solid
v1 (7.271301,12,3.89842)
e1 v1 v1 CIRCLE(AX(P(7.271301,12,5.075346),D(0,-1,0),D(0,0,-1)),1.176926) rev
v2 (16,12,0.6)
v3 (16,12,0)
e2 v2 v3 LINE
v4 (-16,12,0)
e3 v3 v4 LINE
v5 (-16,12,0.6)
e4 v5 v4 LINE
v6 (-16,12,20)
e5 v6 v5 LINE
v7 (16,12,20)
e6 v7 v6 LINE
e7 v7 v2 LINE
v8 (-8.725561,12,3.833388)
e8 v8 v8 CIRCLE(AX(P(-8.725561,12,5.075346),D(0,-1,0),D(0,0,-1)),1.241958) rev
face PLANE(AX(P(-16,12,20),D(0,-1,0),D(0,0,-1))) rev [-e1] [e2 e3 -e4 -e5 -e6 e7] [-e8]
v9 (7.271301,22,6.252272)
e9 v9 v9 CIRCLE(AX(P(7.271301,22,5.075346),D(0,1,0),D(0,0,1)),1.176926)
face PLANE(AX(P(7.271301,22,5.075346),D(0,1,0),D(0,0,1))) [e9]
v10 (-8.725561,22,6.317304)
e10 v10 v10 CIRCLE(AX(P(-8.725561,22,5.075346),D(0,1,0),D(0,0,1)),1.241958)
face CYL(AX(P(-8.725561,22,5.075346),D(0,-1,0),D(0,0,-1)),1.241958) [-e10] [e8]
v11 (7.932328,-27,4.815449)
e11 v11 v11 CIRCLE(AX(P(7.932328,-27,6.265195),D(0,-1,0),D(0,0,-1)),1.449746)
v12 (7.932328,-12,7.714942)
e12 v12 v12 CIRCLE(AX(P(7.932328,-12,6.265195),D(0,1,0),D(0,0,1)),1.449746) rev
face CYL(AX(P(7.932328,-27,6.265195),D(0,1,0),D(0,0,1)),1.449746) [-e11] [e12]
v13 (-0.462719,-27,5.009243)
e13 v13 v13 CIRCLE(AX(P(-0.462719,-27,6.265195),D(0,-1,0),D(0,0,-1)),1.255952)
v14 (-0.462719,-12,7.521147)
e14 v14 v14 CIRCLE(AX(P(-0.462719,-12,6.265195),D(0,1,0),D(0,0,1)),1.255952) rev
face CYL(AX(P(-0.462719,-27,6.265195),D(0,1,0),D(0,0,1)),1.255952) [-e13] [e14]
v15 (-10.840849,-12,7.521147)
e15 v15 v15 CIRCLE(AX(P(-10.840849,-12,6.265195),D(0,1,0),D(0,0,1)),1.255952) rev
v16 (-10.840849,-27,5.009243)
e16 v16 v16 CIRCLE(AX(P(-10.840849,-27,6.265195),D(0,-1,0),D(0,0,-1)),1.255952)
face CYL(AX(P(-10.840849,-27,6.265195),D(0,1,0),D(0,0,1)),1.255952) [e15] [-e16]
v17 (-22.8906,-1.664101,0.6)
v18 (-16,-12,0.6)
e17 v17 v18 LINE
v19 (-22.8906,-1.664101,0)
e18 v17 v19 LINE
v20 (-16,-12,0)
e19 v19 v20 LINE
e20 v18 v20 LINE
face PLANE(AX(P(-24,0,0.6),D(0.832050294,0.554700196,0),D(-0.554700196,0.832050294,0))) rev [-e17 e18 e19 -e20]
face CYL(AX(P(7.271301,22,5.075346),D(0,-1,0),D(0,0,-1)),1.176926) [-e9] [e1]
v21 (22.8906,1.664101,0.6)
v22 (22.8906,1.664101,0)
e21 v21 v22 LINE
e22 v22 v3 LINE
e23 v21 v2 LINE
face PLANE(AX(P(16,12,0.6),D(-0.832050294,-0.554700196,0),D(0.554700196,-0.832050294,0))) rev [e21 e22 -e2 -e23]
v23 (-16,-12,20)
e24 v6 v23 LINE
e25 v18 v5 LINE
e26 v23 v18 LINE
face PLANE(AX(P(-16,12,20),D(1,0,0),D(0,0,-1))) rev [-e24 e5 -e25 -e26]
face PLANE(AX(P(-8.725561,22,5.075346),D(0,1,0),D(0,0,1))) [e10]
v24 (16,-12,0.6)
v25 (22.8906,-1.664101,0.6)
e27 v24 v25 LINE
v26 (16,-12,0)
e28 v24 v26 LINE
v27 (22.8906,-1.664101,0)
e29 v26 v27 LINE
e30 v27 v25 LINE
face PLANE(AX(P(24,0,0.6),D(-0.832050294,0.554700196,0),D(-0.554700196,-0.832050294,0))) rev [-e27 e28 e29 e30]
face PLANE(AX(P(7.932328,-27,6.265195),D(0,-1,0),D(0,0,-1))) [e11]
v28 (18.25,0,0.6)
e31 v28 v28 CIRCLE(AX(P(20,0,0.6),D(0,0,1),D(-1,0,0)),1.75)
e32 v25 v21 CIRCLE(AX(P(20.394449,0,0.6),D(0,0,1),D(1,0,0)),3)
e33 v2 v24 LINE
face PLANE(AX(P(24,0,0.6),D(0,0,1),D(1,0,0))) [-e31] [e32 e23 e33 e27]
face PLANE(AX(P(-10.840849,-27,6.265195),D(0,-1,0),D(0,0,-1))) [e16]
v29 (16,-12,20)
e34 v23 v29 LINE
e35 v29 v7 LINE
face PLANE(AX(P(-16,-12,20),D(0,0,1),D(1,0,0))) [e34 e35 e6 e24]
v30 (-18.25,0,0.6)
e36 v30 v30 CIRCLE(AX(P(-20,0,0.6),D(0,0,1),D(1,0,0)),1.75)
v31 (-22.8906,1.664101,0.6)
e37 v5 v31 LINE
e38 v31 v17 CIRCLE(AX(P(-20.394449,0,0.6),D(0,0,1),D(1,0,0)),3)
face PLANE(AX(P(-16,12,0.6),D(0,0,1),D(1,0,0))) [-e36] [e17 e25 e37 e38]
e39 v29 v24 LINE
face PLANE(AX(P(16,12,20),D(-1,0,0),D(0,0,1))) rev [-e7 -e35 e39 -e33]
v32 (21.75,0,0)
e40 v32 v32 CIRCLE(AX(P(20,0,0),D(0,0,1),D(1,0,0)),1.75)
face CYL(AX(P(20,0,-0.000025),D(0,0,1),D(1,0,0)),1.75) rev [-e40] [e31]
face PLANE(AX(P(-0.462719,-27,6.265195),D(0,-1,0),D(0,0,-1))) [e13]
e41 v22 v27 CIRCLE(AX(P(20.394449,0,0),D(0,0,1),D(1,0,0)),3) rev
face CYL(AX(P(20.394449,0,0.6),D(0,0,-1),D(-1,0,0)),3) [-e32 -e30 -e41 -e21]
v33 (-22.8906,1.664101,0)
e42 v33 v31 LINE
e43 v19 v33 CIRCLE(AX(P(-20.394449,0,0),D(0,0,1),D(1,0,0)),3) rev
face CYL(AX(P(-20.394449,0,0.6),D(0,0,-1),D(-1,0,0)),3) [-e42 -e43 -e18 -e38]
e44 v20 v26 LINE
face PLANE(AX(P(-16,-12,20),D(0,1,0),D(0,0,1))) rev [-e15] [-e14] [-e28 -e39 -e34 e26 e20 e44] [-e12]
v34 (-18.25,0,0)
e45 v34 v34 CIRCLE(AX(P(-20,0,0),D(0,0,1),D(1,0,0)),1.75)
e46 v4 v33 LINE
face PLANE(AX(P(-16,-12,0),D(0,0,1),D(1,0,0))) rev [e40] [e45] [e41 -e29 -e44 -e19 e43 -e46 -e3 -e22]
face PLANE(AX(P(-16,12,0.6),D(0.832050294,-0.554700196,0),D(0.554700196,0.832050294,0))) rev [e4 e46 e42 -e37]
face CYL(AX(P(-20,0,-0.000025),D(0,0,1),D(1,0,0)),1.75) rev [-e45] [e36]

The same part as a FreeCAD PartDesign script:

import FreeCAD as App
import Part
import Sketcher
Q = App.Units.Quantity


def edges_at(feature, points):
    """Names of the edges that pass closest to the given points."""
    edges = feature.Shape.Edges
    near = lambda p: min(range(len(edges)), key=lambda i: edges[i].distToShape(Part.Vertex(*p))[0])
    return sorted({f"Edge{near(p) + 1}" for p in points})

doc = App.newDocument("Part")
body = doc.addObject("PartDesign::Body", "Body")

sketch1 = doc.addObject("Sketcher::SketchObject", "Sketch")
body.addObject(sketch1)
sketch1.AttachmentSupport = (doc.XY_Plane, [""])
sketch1.MapMode = "FlatFace"
sketch1.addGeometry(Part.LineSegment(App.Vector(-16, 12, 0), App.Vector(-16, -12, 0)), False)
sketch1.addGeometry(Part.LineSegment(App.Vector(-16, -12, 0), App.Vector(16, -12, 0)), False)
sketch1.addGeometry(Part.LineSegment(App.Vector(16, -12, 0), App.Vector(16, 12, 0)), False)
sketch1.addGeometry(Part.LineSegment(App.Vector(16, 12, 0), App.Vector(-16, 12, 0)), False)
sketch1.addConstraint(Sketcher.Constraint("Coincident", 0, 2, 1, 1))
sketch1.addConstraint(Sketcher.Constraint("Coincident", 1, 2, 2, 1))
sketch1.addConstraint(Sketcher.Constraint("Coincident", 2, 2, 3, 1))
sketch1.addConstraint(Sketcher.Constraint("Coincident", 3, 2, 0, 1))
sketch1.addConstraint(Sketcher.Constraint("Vertical", 0))
sketch1.addConstraint(Sketcher.Constraint("Horizontal", 1))
sketch1.addConstraint(Sketcher.Constraint("Vertical", 2))
sketch1.addConstraint(Sketcher.Constraint("Horizontal", 3))
sketch1.addConstraint(Sketcher.Constraint("Symmetric", 0, 2, 2, 2, -1, 1))
sketch1.addConstraint(Sketcher.Constraint("DistanceX", 1, 1, 1, 2, Q("32 mm")))
sketch1.addConstraint(Sketcher.Constraint("DistanceY", 0, 2, 0, 1, Q("24 mm")))
pad1 = doc.addObject("PartDesign::Pad", "Pad")
body.addObject(pad1)
pad1.Profile = sketch1
pad1.Length = 20

sketch2 = doc.addObject("Sketcher::SketchObject", "Sketch001")
body.addObject(sketch2)
sketch2.AttachmentSupport = (doc.XY_Plane, [""])
sketch2.MapMode = "FlatFace"
sketch2.addGeometry(Part.LineSegment(App.Vector(-16, 12, 0), App.Vector(-24, 0, 0)), False)
sketch2.addGeometry(Part.LineSegment(App.Vector(-24, 0, 0), App.Vector(-16, -12, 0)), False)
sketch2.addGeometry(Part.LineSegment(App.Vector(-16, -12, 0), App.Vector(-16, 12, 0)), False)
sketch2.addGeometry(Part.LineSegment(App.Vector(16, 12, 0), App.Vector(16, -12, 0)), False)
sketch2.addGeometry(Part.LineSegment(App.Vector(16, -12, 0), App.Vector(24, 0, 0)), False)
sketch2.addGeometry(Part.LineSegment(App.Vector(24, 0, 0), App.Vector(16, 12, 0)), False)
sketch2.addConstraint(Sketcher.Constraint("Coincident", 0, 2, 1, 1))
sketch2.addConstraint(Sketcher.Constraint("Coincident", 1, 2, 2, 1))
sketch2.addConstraint(Sketcher.Constraint("Coincident", 2, 2, 0, 1))
sketch2.addConstraint(Sketcher.Constraint("Coincident", 3, 2, 4, 1))
sketch2.addConstraint(Sketcher.Constraint("Coincident", 4, 2, 5, 1))
sketch2.addConstraint(Sketcher.Constraint("Coincident", 5, 2, 3, 1))
sketch2.addConstraint(Sketcher.Constraint("Vertical", 2))
sketch2.addConstraint(Sketcher.Constraint("Vertical", 3))
sketch2.addConstraint(Sketcher.Constraint("Symmetric", 2, 2, 3, 2, -1, 1))
sketch2.addConstraint(Sketcher.Constraint("Symmetric", 0, 2, 4, 2, -1, 1))
sketch2.addConstraint(Sketcher.Constraint("PointOnObject", 0, 2, -1))
sketch2.addConstraint(Sketcher.Constraint("Parallel", 1, 5))
sketch2.addConstraint(Sketcher.Constraint("Horizontal", 1, 2, 3, 2))
sketch2.addConstraint(Sketcher.Constraint("DistanceY", 2, 1, 2, 2, Q("24 mm")))
sketch2.addConstraint(Sketcher.Constraint("DistanceX", 0, 2, -1, 1, Q("24 mm")))
sketch2.addConstraint(Sketcher.Constraint("DistanceX", 1, 2, -1, 1, Q("16 mm")))
pad2 = doc.addObject("PartDesign::Pad", "Pad001")
body.addObject(pad2)
pad2.Profile = sketch2
pad2.Length = 0.6

sketch3 = doc.addObject("Sketcher::SketchObject", "Sketch002")
body.addObject(sketch3)
sketch3.AttachmentSupport = (doc.XY_Plane, [""])
sketch3.MapMode = "FlatFace"
sketch3.AttachmentOffset = App.Placement(App.Vector(0, 0, 0.6), App.Rotation())
sketch3.addGeometry(Part.Circle(App.Vector(-20, 0, 0), App.Vector(0, 0, 1), 1.8), False)
sketch3.addGeometry(Part.Circle(App.Vector(20, 0, 0), App.Vector(0, 0, 1), 1.8), False)
sketch3.addConstraint(Sketcher.Constraint("Equal", 0, 1))
sketch3.addConstraint(Sketcher.Constraint("Symmetric", 0, 3, 1, 3, -1, 1))
sketch3.addConstraint(Sketcher.Constraint("PointOnObject", 0, 3, -1))
sketch3.addConstraint(Sketcher.Constraint("Diameter", 0, Q("3.5 mm")))
sketch3.addConstraint(Sketcher.Constraint("DistanceX", 0, 3, -1, 1, Q("20 mm")))
pocket1 = doc.addObject("PartDesign::Pocket", "Pocket")
body.addObject(pocket1)
pocket1.Profile = sketch3
pocket1.Type = "ThroughAll"
doc.recompute()

fillet = doc.addObject("PartDesign::Fillet", "Fillet")
body.addObject(fillet)
fillet.Base = (pocket1, edges_at(pocket1, [(24, 0, 0.3), (-24, 0, 0.3)]))
fillet.Radius = 3

sketch4 = doc.addObject("Sketcher::SketchObject", "Sketch003")
body.addObject(sketch4)
sketch4.AttachmentSupport = (doc.XZ_Plane, [""])
sketch4.MapMode = "FlatFace"
sketch4.AttachmentOffset = App.Placement(App.Vector(0, 0, -12), App.Rotation())
sketch4.addGeometry(Part.Circle(App.Vector(-8.7, 5.1, 0), App.Vector(0, 0, 1), 1.2), False)
sketch4.addGeometry(Part.Circle(App.Vector(7.3, 5.1, 0), App.Vector(0, 0, 1), 1.2), False)
sketch4.addConstraint(Sketcher.Constraint("Horizontal", 0, 3, 1, 3))
sketch4.addConstraint(Sketcher.Constraint("Diameter", 1, Q("2.353852 mm")))
sketch4.addConstraint(Sketcher.Constraint("Diameter", 0, Q("2.483915 mm")))
sketch4.addConstraint(Sketcher.Constraint("DistanceX", -1, 1, 1, 3, Q("7.271301 mm")))
sketch4.addConstraint(Sketcher.Constraint("DistanceX", 0, 3, -1, 1, Q("8.725561 mm")))
sketch4.addConstraint(Sketcher.Constraint("DistanceY", -1, 1, 0, 3, Q("5.075346 mm")))
pad3 = doc.addObject("PartDesign::Pad", "Pad002")
body.addObject(pad3)
pad3.Profile = sketch4
pad3.Length = 10
pad3.Reversed = True

sketch5 = doc.addObject("Sketcher::SketchObject", "Sketch004")
body.addObject(sketch5)
sketch5.AttachmentSupport = (doc.XZ_Plane, [""])
sketch5.MapMode = "FlatFace"
sketch5.AttachmentOffset = App.Placement(App.Vector(0, 0, 12), App.Rotation())
sketch5.addGeometry(Part.Circle(App.Vector(-10.8, 6.3, 0), App.Vector(0, 0, 1), 1.3), False)
sketch5.addGeometry(Part.Circle(App.Vector(-0.5, 6.3, 0), App.Vector(0, 0, 1), 1.3), False)
sketch5.addGeometry(Part.Circle(App.Vector(7.9, 6.3, 0), App.Vector(0, 0, 1), 1.4), False)
sketch5.addConstraint(Sketcher.Constraint("Equal", 0, 1))
sketch5.addConstraint(Sketcher.Constraint("Horizontal", 0, 3, 1, 3))
sketch5.addConstraint(Sketcher.Constraint("Horizontal", 1, 3, 2, 3))
sketch5.addConstraint(Sketcher.Constraint("Diameter", 0, Q("2.511904 mm")))
sketch5.addConstraint(Sketcher.Constraint("Diameter", 2, Q("2.899492 mm")))
sketch5.addConstraint(Sketcher.Constraint("DistanceX", 0, 3, -1, 1, Q("10.840849 mm")))
sketch5.addConstraint(Sketcher.Constraint("DistanceX", 1, 3, -1, 1, Q("0.462719 mm")))
sketch5.addConstraint(Sketcher.Constraint("DistanceX", -1, 1, 2, 3, Q("7.932328 mm")))
sketch5.addConstraint(Sketcher.Constraint("DistanceY", -1, 1, 0, 3, Q("6.265195 mm")))
pad4 = doc.addObject("PartDesign::Pad", "Pad003")
body.addObject(pad4)
pad4.Profile = sketch5
pad4.Length = 15

doc.recompute()
